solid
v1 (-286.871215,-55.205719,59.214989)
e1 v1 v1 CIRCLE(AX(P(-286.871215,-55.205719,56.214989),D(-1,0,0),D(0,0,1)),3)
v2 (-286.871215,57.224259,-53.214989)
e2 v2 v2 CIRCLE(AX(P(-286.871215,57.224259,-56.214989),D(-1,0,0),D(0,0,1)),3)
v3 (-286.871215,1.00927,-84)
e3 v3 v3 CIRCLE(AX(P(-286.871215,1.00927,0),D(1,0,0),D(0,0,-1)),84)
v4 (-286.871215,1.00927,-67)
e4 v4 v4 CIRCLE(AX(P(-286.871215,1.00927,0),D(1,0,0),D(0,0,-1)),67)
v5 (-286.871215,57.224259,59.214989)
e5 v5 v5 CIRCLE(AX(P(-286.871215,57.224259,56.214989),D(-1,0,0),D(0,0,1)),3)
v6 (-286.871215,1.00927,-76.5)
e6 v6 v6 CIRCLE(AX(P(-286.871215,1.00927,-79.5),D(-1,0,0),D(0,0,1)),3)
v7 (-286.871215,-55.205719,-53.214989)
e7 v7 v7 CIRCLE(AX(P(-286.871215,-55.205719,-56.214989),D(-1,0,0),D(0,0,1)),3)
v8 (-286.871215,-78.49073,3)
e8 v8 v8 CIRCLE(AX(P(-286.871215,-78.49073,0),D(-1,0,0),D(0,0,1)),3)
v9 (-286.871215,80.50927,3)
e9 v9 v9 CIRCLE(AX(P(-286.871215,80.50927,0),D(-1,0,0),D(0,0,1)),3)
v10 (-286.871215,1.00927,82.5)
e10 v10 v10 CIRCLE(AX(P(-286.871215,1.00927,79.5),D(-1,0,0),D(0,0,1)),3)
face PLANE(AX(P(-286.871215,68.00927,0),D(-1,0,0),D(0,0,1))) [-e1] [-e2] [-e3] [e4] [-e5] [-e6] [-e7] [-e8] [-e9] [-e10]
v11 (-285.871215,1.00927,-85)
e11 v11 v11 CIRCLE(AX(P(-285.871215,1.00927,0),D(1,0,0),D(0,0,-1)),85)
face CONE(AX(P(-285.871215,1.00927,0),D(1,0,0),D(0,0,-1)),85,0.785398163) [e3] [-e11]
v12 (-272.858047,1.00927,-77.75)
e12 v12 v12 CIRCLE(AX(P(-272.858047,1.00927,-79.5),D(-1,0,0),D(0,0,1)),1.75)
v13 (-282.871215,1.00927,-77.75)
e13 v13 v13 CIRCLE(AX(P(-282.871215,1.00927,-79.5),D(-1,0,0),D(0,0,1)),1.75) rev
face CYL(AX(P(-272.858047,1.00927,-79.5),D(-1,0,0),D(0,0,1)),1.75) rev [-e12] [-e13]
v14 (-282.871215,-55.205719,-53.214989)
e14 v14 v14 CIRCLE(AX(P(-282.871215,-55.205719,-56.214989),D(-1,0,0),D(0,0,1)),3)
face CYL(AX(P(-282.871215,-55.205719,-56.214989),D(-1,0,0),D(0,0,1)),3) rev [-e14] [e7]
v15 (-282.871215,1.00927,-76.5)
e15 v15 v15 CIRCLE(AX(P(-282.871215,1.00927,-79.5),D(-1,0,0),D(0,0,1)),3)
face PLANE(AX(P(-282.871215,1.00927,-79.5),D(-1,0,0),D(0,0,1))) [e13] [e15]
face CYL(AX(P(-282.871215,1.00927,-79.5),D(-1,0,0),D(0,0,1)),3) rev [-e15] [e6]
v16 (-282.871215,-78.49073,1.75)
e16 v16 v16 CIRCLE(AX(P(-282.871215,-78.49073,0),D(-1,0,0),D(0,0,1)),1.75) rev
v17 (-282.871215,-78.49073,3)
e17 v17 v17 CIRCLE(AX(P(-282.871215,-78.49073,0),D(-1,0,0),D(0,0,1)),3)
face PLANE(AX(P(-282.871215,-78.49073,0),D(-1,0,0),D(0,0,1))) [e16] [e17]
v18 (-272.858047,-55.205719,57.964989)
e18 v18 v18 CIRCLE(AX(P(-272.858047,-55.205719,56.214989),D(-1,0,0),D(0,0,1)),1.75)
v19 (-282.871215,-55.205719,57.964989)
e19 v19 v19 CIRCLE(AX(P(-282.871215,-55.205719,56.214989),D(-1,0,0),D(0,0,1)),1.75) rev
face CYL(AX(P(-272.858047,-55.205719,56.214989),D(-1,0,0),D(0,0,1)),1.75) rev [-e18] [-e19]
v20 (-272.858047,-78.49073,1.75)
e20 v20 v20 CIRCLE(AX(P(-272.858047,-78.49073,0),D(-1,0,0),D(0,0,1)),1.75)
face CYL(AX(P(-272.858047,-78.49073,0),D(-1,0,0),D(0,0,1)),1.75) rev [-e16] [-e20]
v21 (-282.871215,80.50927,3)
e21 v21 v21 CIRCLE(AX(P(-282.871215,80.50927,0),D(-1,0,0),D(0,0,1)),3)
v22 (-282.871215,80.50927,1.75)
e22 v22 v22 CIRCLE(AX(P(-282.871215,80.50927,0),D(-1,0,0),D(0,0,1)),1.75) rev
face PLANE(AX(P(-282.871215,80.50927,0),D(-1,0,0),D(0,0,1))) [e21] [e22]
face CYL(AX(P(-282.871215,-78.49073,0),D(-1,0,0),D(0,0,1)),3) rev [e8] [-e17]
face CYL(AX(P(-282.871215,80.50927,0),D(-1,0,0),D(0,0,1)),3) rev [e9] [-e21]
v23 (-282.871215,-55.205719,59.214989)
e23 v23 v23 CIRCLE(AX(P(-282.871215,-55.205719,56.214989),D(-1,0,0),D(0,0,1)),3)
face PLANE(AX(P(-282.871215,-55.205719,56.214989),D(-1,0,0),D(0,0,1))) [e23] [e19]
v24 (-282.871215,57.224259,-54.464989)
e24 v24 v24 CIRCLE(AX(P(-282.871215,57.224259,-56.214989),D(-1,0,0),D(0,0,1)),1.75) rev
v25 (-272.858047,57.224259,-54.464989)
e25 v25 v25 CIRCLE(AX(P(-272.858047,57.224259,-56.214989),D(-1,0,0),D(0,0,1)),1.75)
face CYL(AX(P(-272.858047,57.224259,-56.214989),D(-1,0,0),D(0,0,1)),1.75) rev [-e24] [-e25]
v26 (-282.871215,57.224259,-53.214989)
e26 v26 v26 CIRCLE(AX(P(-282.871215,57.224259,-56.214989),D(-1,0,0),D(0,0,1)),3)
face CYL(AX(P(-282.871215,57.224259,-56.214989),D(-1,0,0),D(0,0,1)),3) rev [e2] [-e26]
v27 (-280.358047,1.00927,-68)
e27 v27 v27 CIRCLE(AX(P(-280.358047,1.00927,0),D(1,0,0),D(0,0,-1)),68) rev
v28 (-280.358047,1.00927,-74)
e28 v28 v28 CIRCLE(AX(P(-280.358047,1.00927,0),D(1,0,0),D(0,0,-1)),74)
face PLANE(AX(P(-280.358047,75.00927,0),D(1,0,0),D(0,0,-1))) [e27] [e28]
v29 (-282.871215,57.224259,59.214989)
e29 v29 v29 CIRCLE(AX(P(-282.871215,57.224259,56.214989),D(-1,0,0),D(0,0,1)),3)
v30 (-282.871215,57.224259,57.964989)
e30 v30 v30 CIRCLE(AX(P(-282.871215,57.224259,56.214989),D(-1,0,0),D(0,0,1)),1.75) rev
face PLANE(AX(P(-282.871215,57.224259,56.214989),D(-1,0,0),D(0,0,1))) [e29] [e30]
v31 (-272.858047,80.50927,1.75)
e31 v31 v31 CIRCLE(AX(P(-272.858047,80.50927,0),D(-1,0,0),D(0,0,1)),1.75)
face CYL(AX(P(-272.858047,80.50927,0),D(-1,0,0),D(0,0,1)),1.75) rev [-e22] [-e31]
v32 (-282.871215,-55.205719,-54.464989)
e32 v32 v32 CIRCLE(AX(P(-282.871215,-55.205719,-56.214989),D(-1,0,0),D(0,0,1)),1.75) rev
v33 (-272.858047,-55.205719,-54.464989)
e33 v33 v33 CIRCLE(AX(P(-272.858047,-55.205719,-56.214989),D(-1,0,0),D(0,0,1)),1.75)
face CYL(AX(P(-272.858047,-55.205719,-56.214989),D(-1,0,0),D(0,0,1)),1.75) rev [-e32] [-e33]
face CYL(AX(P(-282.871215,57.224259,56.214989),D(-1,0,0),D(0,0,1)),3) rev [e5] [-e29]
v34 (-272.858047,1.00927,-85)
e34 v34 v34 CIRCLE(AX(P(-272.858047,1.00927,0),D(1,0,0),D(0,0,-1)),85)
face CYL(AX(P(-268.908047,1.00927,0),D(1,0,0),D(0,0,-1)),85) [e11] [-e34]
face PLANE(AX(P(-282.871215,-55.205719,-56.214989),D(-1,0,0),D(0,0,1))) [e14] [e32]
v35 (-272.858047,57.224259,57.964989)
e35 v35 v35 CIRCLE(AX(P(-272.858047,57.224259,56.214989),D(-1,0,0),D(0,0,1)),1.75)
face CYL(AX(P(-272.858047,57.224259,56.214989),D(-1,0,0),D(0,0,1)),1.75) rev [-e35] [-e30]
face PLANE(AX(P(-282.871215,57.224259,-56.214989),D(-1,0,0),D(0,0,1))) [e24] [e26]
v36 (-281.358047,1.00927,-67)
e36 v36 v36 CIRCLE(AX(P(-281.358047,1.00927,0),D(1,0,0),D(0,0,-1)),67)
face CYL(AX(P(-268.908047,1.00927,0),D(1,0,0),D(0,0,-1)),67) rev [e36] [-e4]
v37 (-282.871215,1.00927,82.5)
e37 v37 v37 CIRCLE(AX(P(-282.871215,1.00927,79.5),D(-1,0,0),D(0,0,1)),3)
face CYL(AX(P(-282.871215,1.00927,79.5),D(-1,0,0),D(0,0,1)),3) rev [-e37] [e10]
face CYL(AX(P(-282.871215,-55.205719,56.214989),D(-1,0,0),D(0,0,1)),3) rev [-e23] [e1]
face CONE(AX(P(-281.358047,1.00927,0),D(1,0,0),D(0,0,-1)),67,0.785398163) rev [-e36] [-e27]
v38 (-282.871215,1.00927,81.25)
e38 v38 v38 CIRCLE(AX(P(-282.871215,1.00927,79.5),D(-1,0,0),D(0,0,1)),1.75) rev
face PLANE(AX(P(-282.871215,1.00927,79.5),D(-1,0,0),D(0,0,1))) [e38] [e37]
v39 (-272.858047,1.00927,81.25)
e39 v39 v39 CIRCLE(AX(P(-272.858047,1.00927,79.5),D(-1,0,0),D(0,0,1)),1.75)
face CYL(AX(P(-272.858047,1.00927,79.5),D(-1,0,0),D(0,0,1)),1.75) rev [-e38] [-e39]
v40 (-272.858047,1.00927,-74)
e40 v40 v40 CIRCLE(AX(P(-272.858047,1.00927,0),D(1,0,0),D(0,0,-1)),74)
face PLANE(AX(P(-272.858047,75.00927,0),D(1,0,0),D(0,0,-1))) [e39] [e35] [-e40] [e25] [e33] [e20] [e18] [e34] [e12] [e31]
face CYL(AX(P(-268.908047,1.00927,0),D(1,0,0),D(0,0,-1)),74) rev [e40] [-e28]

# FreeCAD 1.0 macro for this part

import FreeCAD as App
import Part
import Sketcher
from FreeCAD import Vector
Q = App.Units.Quantity


def edges_at(feature, points):
    """Names of the edges that pass closest to the given points."""
    edges = feature.Shape.Edges
    near = lambda p: min(range(len(edges)), key=lambda i: edges[i].distToShape(Part.Vertex(*p))[0])
    return sorted({f"Edge{near(p) + 1}" for p in points})


def add_polygon(sketch, points):
    """Adds a closed chain of lines whose ends are joined by coincident constraints."""
    first, n = sketch.GeometryCount, len(points)
    for a, b in zip(points, points[1:] + points[:1]):
        sketch.addGeometry(Part.LineSegment(App.Vector(*a, 0), App.Vector(*b, 0)), False)
    for i in range(n):
        sketch.addConstraint(Sketcher.Constraint("Coincident", first + i, 2, first + (i + 1) % n, 1))

doc = App.newDocument("Part")
body = doc.addObject("PartDesign::Body", "Body")

sketch1 = body.newObject("Sketcher::SketchObject", "Sketch")
sketch1.AttachmentSupport = (doc.getObject("XY_Plane"), [""])
sketch1.MapMode = "FlatFace"
add_polygon(sketch1, [(-280.4, 75), (-272.9, 75), (-272.9, 86), (-285.9, 86), (-286.9, 85), (-286.9, 68), (-280.4, 68)])
sketch1.addGeometry(Part.LineSegment(Vector(-272.9, 1, 0), Vector(-286.9, 1, 0)), True)
sketch1.addConstraint([
    Sketcher.Constraint("Horizontal", 0),
    Sketcher.Constraint("Vertical", 1),
    Sketcher.Constraint("Horizontal", 2),
    Sketcher.Constraint("Vertical", 4),
    Sketcher.Constraint("Horizontal", 5),
    Sketcher.Constraint("Vertical", 6),
    Sketcher.Constraint("Horizontal", 7),
    Sketcher.Constraint("Vertical", 1, 2, 7, 1),
    Sketcher.Constraint("Vertical", 4, 2, 7, 2),
    Sketcher.Constraint("DistanceY", 1, 1, 1, 2, 11.0),
    Sketcher.Constraint("DistanceY", 4, 2, 4, 1, 17.0),
    Sketcher.Constraint("DistanceY", 6, 1, 6, 2, 7.0),
    Sketcher.Constraint("Angle", 3, Q("-135 deg")),
    Sketcher.Constraint("DistanceX", 0, 1, 0, 2, 7.5),
    Sketcher.Constraint("DistanceY", 7, 1, 5, 2, 67.0),
    Sketcher.Constraint("DistanceX", 2, 2, 2, 1, 13.013168),
    Sketcher.Constraint("DistanceY", -1, 1, 0, 2, 75.00927),
    Sketcher.Constraint("DistanceX", 0, 2, -1, 1, 272.858047),
])
revolution = body.newObject("PartDesign::Revolution", "Revolution")
revolution.Profile = sketch1
revolution.ReferenceAxis = (sketch1, ["Axis0"])
revolution.Angle = 360

sketch2 = body.newObject("Sketcher::SketchObject", "Sketch001")
sketch2.AttachmentSupport = (doc.getObject("YZ_Plane"), [""])
sketch2.MapMode = "FlatFace"
sketch2.AttachmentOffset = App.Placement(Vector(0, 0, -286.871215), App.Rotation())
sketch2.addGeometry([
    Part.Circle(Vector(1, 79.5, 0), Vector(0, 0, 1), 1.8),
    Part.Circle(Vector(-55.2, 56.2, 0), Vector(0, 0, 1), 1.8),
    Part.Circle(Vector(-78.5, 0, 0), Vector(0, 0, 1), 1.8),
    Part.Circle(Vector(-55.2, -56.2, 0), Vector(0, 0, 1), 1.8),
    Part.Circle(Vector(1, -79.5, 0), Vector(0, 0, 1), 1.8),
    Part.Circle(Vector(57.2, -56.2, 0), Vector(0, 0, 1), 1.8),
    Part.Circle(Vector(80.5, 0, 0), Vector(0, 0, 1), 1.8),
    Part.Circle(Vector(57.2, 56.2, 0), Vector(0, 0, 1), 1.8),
], False)
sketch2.addConstraint([
    Sketcher.Constraint("Equal", 0, 1),
    Sketcher.Constraint("Equal", 1, 2),
    Sketcher.Constraint("Equal", 2, 3),
    Sketcher.Constraint("Equal", 3, 4),
    Sketcher.Constraint("Equal", 4, 5),
    Sketcher.Constraint("Equal", 5, 6),
    Sketcher.Constraint("Equal", 6, 7),
    Sketcher.Constraint("Symmetric", 1, 3, 3, 3, -1),
    Sketcher.Constraint("Symmetric", 0, 3, 4, 3, -1),
    Sketcher.Constraint("Symmetric", 5, 3, 7, 3, -1),
    Sketcher.Constraint("PointOnObject", 2, 3, -1),
    Sketcher.Constraint("PointOnObject", 6, 3, -1),
    Sketcher.Constraint("Horizontal", 3, 3, 5, 3),
    Sketcher.Constraint("Diameter", 0, 3.5),
    Sketcher.Constraint("DistanceY", 4, 3, 0, 3, 159.0),
    Sketcher.Constraint("DistanceX", 2, 3, 0, 3, 79.5),
    Sketcher.Constraint("DistanceX", 0, 3, 6, 3, 79.5),
    Sketcher.Constraint("DistanceX", -1, 1, 0, 3, 1.00927),
    Sketcher.Constraint("DistanceX", 1, 3, -1, 1, 55.205719),
    Sketcher.Constraint("DistanceY", -1, 1, 1, 3, 56.214989),
    Sketcher.Constraint("DistanceX", -1, 1, 5, 3, 57.224259),
])
pocket1 = body.newObject("PartDesign::Pocket", "Pocket")
pocket1.Profile = sketch2
pocket1.Type = "ThroughAll"
pocket1.Reversed = True

sketch3 = body.newObject("Sketcher::SketchObject", "Sketch002")
sketch3.AttachmentSupport = (doc.getObject("YZ_Plane"), [""])
sketch3.MapMode = "FlatFace"
sketch3.AttachmentOffset = App.Placement(Vector(0, 0, -286.871215), App.Rotation())
sketch3.addGeometry([
    Part.Circle(Vector(1, 79.5, 0), Vector(0, 0, 1), 3),
    Part.Circle(Vector(-55.2, 56.2, 0), Vector(0, 0, 1), 3),
    Part.Circle(Vector(-78.5, 0, 0), Vector(0, 0, 1), 3),
    Part.Circle(Vector(-55.2, -56.2, 0), Vector(0, 0, 1), 3),
    Part.Circle(Vector(1, -79.5, 0), Vector(0, 0, 1), 3),
    Part.Circle(Vector(57.2, -56.2, 0), Vector(0, 0, 1), 3),
    Part.Circle(Vector(80.5, 0, 0), Vector(0, 0, 1), 3),
    Part.Circle(Vector(57.2, 56.2, 0), Vector(0, 0, 1), 3),
], False)
sketch3.addConstraint([
    Sketcher.Constraint("Equal", 0, 1),
    Sketcher.Constraint("Equal", 1, 2),
    Sketcher.Constraint("Equal", 2, 3),
    Sketcher.Constraint("Equal", 3, 4),
    Sketcher.Constraint("Equal", 4, 5),
    Sketcher.Constraint("Equal", 5, 6),
    Sketcher.Constraint("Equal", 6, 7),
    Sketcher.Constraint("Symmetric", 1, 3, 3, 3, -1),
    Sketcher.Constraint("Symmetric", 0, 3, 4, 3, -1),
    Sketcher.Constraint("Symmetric", 5, 3, 7, 3, -1),
    Sketcher.Constraint("PointOnObject", 2, 3, -1),
    Sketcher.Constraint("PointOnObject", 6, 3, -1),
    Sketcher.Constraint("Horizontal", 3, 3, 5, 3),
    Sketcher.Constraint("Diameter", 0, 6.0),
    Sketcher.Constraint("DistanceY", 4, 3, 0, 3, 159.0),
    Sketcher.Constraint("DistanceX", 2, 3, 0, 3, 79.5),
    Sketcher.Constraint("DistanceX", 0, 3, 6, 3, 79.5),
    Sketcher.Constraint("DistanceX", -1, 1, 0, 3, 1.00927),
    Sketcher.Constraint("DistanceX", 1, 3, -1, 1, 55.205719),
    Sketcher.Constraint("DistanceY", -1, 1, 1, 3, 56.214989),
    Sketcher.Constraint("DistanceX", -1, 1, 5, 3, 57.224259),
])
pocket2 = body.newObject("PartDesign::Pocket", "Pocket001")
pocket2.Profile = sketch3
pocket2.Length = 4
pocket2.Reversed = True
doc.recompute()

chamfer = body.newObject("PartDesign::Chamfer", "Chamfer")
chamfer.Base = (pocket2, edges_at(pocket2, [(-280.358, -65.991, 0)]))
chamfer.Size = 1

doc.recompute()
